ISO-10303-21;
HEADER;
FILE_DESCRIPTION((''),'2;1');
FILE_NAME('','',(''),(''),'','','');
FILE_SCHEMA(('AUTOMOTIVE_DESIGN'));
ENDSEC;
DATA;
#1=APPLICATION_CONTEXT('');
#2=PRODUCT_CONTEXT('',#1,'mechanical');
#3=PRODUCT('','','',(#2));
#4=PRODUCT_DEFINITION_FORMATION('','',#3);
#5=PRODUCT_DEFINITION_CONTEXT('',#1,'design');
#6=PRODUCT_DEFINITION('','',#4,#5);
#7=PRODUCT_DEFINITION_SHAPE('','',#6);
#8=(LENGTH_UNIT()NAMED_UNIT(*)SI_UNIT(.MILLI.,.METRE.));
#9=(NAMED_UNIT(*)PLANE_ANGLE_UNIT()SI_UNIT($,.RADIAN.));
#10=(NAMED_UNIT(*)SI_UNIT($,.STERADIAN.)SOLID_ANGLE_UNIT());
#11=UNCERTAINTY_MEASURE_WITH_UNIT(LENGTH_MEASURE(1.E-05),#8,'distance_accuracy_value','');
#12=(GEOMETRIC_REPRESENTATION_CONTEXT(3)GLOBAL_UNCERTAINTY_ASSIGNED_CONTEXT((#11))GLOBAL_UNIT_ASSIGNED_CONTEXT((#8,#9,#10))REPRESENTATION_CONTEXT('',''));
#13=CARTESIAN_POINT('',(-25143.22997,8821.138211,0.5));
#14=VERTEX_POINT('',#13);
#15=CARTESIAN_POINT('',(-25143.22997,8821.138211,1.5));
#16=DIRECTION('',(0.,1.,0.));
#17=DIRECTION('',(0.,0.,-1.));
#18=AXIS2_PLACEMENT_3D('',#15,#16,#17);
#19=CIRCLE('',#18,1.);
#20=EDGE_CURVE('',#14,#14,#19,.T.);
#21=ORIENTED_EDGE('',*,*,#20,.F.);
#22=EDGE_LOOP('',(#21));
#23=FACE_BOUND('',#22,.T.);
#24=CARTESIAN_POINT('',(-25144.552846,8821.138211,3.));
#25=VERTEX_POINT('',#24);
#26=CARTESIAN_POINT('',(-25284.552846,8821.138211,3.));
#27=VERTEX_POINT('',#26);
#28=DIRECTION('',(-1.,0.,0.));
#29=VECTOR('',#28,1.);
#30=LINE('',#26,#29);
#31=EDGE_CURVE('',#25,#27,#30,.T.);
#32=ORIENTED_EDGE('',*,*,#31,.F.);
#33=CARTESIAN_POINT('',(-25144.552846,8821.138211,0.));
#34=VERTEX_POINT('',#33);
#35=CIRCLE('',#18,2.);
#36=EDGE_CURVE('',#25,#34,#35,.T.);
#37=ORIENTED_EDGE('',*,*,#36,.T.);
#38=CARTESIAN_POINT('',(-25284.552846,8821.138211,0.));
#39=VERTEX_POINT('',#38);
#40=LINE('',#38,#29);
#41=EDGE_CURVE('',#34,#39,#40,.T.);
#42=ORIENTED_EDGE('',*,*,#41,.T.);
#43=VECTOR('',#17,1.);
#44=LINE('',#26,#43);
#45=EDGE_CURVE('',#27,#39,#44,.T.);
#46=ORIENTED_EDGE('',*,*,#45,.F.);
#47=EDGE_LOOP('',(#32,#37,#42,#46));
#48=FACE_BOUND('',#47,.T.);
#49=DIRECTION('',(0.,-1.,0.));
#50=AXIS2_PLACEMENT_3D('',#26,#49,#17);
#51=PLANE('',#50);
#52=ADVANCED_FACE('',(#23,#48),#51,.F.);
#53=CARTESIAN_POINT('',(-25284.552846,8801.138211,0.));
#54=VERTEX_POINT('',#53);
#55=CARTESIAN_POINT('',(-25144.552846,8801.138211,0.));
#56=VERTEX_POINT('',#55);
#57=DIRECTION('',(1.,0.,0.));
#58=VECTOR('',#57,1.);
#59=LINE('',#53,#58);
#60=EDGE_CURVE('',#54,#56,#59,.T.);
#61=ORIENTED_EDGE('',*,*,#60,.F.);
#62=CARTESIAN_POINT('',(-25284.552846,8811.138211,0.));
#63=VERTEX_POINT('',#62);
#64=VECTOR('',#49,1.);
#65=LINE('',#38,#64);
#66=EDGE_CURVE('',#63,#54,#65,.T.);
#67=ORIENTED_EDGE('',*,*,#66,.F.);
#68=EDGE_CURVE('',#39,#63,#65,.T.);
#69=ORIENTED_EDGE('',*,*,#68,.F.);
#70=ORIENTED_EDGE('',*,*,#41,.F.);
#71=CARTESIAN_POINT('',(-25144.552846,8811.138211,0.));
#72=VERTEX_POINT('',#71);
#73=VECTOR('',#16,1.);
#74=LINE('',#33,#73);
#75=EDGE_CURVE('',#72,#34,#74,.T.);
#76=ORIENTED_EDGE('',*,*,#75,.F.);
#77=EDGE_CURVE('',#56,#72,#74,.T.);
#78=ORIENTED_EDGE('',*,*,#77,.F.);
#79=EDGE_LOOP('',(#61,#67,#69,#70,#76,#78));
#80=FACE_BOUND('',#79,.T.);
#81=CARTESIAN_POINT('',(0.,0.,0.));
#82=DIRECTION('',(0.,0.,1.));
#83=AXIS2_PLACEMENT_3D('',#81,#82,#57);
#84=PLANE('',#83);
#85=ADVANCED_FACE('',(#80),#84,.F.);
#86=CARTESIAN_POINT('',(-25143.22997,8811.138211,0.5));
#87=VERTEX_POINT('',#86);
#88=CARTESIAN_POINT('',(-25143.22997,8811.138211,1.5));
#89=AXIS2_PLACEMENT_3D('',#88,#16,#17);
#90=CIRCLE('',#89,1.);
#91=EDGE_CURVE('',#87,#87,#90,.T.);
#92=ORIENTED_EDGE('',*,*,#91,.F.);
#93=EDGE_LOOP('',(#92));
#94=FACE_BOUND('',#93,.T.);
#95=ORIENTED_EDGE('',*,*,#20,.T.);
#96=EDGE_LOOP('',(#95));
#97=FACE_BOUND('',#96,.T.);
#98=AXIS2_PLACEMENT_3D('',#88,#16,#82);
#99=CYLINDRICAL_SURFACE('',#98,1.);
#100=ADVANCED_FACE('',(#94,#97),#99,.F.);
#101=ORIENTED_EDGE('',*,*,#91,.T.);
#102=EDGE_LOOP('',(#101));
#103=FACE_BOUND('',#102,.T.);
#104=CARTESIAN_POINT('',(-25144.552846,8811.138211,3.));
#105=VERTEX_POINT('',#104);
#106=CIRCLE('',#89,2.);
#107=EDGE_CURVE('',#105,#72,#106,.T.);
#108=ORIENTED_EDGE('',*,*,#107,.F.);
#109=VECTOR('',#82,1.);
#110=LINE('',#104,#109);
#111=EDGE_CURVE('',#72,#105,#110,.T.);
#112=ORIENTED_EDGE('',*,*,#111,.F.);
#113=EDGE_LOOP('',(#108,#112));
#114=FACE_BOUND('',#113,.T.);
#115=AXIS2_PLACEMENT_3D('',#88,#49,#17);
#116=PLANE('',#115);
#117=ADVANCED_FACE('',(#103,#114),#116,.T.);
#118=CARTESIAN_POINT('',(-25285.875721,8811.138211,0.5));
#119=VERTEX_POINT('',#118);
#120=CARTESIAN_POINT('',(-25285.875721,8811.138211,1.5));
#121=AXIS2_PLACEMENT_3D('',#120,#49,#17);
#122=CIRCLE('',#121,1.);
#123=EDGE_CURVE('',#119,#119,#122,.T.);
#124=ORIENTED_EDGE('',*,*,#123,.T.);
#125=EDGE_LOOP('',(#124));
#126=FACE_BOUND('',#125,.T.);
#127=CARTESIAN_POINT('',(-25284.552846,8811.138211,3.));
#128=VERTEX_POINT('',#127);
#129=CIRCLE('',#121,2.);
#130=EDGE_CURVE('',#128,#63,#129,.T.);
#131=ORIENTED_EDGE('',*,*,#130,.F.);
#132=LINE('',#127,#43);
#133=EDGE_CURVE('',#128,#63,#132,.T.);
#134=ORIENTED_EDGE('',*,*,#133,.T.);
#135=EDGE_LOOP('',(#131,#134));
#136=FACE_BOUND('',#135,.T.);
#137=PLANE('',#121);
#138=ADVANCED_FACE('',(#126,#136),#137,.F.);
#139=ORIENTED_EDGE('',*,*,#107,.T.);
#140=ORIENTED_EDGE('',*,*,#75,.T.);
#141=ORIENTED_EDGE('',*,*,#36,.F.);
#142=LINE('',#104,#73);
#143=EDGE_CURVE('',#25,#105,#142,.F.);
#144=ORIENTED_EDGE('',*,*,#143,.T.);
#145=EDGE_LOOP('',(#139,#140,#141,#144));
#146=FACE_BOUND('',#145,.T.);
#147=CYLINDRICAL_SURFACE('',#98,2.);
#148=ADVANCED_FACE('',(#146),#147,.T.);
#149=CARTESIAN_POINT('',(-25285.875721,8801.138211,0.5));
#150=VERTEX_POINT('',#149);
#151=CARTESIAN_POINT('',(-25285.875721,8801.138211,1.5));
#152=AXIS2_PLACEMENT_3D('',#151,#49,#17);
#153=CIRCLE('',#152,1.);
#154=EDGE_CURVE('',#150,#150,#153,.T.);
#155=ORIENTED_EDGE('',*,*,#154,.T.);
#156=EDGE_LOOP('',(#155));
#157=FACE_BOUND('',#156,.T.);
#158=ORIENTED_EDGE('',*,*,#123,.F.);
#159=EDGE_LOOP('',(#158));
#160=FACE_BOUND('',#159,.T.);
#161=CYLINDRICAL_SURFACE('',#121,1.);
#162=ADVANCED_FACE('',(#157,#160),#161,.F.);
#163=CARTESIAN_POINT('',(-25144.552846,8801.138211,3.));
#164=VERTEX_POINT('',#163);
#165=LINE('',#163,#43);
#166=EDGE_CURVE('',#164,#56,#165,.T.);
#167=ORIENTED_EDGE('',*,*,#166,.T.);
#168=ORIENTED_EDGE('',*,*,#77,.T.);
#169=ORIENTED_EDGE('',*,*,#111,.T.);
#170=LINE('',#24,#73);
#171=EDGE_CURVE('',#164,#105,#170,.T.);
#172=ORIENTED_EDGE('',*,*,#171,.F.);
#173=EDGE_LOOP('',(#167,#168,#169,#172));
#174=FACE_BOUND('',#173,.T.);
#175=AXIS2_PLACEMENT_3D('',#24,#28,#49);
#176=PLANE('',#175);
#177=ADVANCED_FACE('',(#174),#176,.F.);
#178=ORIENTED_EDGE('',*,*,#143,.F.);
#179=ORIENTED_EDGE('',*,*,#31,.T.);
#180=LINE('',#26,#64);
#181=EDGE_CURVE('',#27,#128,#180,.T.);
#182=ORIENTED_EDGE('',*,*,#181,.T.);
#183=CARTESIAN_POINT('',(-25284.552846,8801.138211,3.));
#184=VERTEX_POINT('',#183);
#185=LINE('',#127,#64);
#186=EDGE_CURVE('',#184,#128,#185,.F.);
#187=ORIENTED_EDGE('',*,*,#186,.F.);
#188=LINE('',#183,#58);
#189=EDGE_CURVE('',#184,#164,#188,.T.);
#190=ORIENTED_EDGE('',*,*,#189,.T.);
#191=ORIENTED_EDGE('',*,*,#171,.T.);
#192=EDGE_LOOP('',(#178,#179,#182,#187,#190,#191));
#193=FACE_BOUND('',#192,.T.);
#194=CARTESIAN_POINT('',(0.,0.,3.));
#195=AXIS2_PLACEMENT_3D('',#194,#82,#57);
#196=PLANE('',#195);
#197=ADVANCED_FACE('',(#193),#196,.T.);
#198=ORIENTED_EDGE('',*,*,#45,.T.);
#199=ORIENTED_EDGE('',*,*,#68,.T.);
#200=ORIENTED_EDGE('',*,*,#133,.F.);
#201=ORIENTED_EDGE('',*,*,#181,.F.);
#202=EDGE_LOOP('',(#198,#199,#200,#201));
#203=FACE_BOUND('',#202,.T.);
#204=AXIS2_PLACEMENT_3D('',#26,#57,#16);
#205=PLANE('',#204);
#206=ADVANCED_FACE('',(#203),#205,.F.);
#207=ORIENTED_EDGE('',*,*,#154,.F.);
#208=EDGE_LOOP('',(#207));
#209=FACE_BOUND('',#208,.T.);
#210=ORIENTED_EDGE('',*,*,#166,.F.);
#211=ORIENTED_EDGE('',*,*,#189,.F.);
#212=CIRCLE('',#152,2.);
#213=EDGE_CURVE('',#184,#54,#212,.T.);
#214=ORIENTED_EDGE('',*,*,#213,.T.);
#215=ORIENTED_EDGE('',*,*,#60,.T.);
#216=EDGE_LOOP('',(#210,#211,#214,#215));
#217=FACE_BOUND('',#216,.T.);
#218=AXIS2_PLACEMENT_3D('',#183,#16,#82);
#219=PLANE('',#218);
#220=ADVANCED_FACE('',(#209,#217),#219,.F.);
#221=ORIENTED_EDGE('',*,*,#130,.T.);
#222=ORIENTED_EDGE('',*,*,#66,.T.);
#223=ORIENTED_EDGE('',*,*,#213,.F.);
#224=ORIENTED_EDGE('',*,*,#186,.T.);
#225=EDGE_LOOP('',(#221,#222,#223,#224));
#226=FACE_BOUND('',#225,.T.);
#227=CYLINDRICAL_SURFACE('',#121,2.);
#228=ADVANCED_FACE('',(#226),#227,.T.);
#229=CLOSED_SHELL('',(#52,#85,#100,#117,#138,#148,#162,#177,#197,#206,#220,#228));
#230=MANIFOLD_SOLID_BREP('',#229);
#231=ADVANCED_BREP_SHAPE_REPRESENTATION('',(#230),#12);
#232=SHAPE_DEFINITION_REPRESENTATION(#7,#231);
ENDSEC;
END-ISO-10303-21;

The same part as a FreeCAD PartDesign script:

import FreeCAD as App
import Part
import Sketcher
from FreeCAD import Vector
Q = App.Units.Quantity


def add_polygon(sketch, points):
    """Adds a closed chain of lines whose ends are joined by coincident constraints."""
    first, n = sketch.GeometryCount, len(points)
    for a, b in zip(points, points[1:] + points[:1]):
        sketch.addGeometry(Part.LineSegment(App.Vector(*a, 0), App.Vector(*b, 0)), False)
    for i in range(n):
        sketch.addConstraint(Sketcher.Constraint("Coincident", first + i, 2, first + (i + 1) % n, 1))

doc = App.newDocument("Part")
body = doc.addObject("PartDesign::Body", "Body")

# Sketch on XY plane
sketch1 = doc.addObject("Sketcher::SketchObject", "Sketch")
body.addObject(sketch1)
sketch1.AttachmentSupport = (doc.XY_Plane, [""])
sketch1.MapMode = "FlatFace"
add_polygon(sketch1, [(-25285, 8821), (-25285, 8801), (-25145, 8801), (-25145, 8821)])  # lines 0-3
sketch1.addConstraint([
    Sketcher.Constraint("Vertical", 0),
    Sketcher.Constraint("Horizontal", 1),
    Sketcher.Constraint("Vertical", 2),
    Sketcher.Constraint("Horizontal", 3),
    Sketcher.Constraint("DistanceX", 1, 1, 1, 2, Q("140 mm")),
    Sketcher.Constraint("DistanceY", 0, 2, 0, 1, Q("20 mm")),
    Sketcher.Constraint("DistanceY", -1, 1, 0, 2, Q("8801.138211 mm")),
    Sketcher.Constraint("DistanceX", 0, 2, -1, 1, Q("25284.552846 mm")),
])
pad1 = doc.addObject("PartDesign::Pad", "Pad")
body.addObject(pad1)
pad1.Profile = sketch1
pad1.Length = 3

# Sketch on XZ plane
sketch2 = doc.addObject("Sketcher::SketchObject", "Sketch001")
body.addObject(sketch2)
sketch2.AttachmentSupport = (doc.XZ_Plane, [""])
sketch2.MapMode = "FlatFace"
sketch2.AttachmentOffset = App.Placement(Vector(0, 0, -8821.138211), App.Rotation())
sketch2.addGeometry([
    Part.Circle(Vector(-25143.22997, 1.5, 0), Vector(0, 0, 1), 2),
    Part.Circle(Vector(-25143.22997, 1.5, 0), Vector(0, 0, 1), 1),
], False)
sketch2.addConstraint([
    Sketcher.Constraint("Coincident", 1, 3, 0, 3),
    Sketcher.Constraint("Diameter", 0, Q("4 mm")),
    Sketcher.Constraint("Diameter", 1, Q("2 mm")),
    Sketcher.Constraint("DistanceY", -1, 1, 0, 3, Q("1.5 mm")),
    Sketcher.Constraint("DistanceX", 0, 3, -1, 1, Q("25143.22997 mm")),
])
pad2 = doc.addObject("PartDesign::Pad", "Pad001")
body.addObject(pad2)
pad2.Profile = sketch2
pad2.Length = 10

# Sketch on XZ plane
sketch3 = doc.addObject("Sketcher::SketchObject", "Sketch002")
body.addObject(sketch3)
sketch3.AttachmentSupport = (doc.XZ_Plane, [""])
sketch3.MapMode = "FlatFace"
sketch3.AttachmentOffset = App.Placement(Vector(0, 0, -8801.138211), App.Rotation())
sketch3.addGeometry([
    Part.Circle(Vector(-25285.875721, 1.5, 0), Vector(0, 0, 1), 2),
    Part.Circle(Vector(-25285.875721, 1.5, 0), Vector(0, 0, 1), 1),
], False)
sketch3.addConstraint([
    Sketcher.Constraint("Coincident", 1, 3, 0, 3),
    Sketcher.Constraint("Diameter", 0, Q("4 mm")),
    Sketcher.Constraint("Diameter", 1, Q("2 mm")),
    Sketcher.Constraint("DistanceY", -1, 1, 0, 3, Q("1.5 mm")),
    Sketcher.Constraint("DistanceX", 0, 3, -1, 1, Q("25285.875721 mm")),
])
pad3 = doc.addObject("PartDesign::Pad", "Pad002")
body.addObject(pad3)
pad3.Profile = sketch3
pad3.Length = 10
pad3.Reversed = True

doc.recompute()
